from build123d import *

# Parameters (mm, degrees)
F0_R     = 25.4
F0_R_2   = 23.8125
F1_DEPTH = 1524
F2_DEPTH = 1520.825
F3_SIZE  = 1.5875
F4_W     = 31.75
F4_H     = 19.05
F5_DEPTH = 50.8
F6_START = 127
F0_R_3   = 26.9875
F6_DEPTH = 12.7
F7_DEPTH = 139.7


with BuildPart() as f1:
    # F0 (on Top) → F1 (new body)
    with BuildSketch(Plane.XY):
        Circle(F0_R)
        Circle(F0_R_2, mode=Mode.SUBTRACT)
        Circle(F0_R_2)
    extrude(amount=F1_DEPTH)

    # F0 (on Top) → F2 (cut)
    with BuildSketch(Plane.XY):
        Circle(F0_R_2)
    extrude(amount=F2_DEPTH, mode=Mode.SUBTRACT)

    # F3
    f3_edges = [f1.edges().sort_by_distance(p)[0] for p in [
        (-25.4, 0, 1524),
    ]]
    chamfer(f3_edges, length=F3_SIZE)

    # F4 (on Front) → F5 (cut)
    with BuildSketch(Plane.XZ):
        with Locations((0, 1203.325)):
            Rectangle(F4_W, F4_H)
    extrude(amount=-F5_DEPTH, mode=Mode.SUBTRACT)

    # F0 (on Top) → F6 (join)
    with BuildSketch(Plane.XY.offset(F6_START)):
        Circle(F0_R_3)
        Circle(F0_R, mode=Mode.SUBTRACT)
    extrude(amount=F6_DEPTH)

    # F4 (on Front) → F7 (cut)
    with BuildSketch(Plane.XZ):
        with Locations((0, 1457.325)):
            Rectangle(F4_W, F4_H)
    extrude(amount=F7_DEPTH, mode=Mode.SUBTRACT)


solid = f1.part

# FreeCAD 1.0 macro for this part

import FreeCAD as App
import Part
import Sketcher
from FreeCAD import Vector
Q = App.Units.Quantity


def edges_at(feature, points):
    """Names of the edges that pass closest to the given points."""
    edges = feature.Shape.Edges
    near = lambda p: min(range(len(edges)), key=lambda i: edges[i].distToShape(Part.Vertex(*p))[0])
    return sorted({f"Edge{near(p) + 1}" for p in points})

doc = App.newDocument("Part")
params = doc.addObject("Spreadsheet::Sheet", "Params")
for row, (alias, value) in enumerate([
    ("sketch1_diameter", "2 in"),
    ("pad1_length", "60 in"),
    ("sketch2_diameter", "1.875 in"),
    ("pocket1_length", "59.875 in"),
    ("chamfer_size", "0.0625 in"),
    ("sketch3_width", "1.25 in"),
    ("sketch3_height", "0.75 in"),
    ("pocket2_length", "2 in"),
    ("sketch4_diameter", "2 in"),
    ("sketch4_diameter2", "2.125 in"),
    ("pad2_length", "0.5 in"),
    ("sketch5_width", "1.25 in"),
    ("sketch5_height", "0.75 in"),
    ("pocket3_length", "5.5 in"),
], start=1):
    params.set(f"A{row}", alias)
    params.set(f"B{row}", "=" + value)
    params.setAlias(f"B{row}", alias)

body = doc.addObject("PartDesign::Body", "Body")

sketch1 = doc.addObject("Sketcher::SketchObject", "Sketch")
body.addObject(sketch1)
sketch1.AttachmentSupport = (doc.XY_Plane, [""])
sketch1.MapMode = "FlatFace"
sketch1.addGeometry(Part.Circle(Vector(0, 0, 0), Vector(0, 0, 1), 25), False)
sketch1.addConstraint([
    Sketcher.Constraint("Coincident", 0, 3, -1, 1),
    Sketcher.Constraint("Diameter", 0, Q("2 in")),
])
sketch1.setExpression("Constraints[1]", "Params.sketch1_diameter")
pad1 = doc.addObject("PartDesign::Pad", "Pad")
body.addObject(pad1)
pad1.Profile = sketch1
pad1.setExpression("Length", "Params.pad1_length")

sketch2 = doc.addObject("Sketcher::SketchObject", "Sketch001")
body.addObject(sketch2)
sketch2.AttachmentSupport = (doc.XY_Plane, [""])
sketch2.MapMode = "FlatFace"
sketch2.addGeometry(Part.Circle(Vector(0, 0, 0), Vector(0, 0, 1), 24), False)
sketch2.addConstraint([
    Sketcher.Constraint("Coincident", 0, 3, -1, 1),
    Sketcher.Constraint("Diameter", 0, Q("1.875 in")),
])
sketch2.setExpression("Constraints[1]", "Params.sketch2_diameter")
pocket1 = doc.addObject("PartDesign::Pocket", "Pocket")
body.addObject(pocket1)
pocket1.Profile = sketch2
pocket1.setExpression("Length", "Params.pocket1_length")
pocket1.Reversed = True
doc.recompute()

chamfer = doc.addObject("PartDesign::Chamfer", "Chamfer")
body.addObject(chamfer)
chamfer.Base = (pocket1, edges_at(pocket1, [(-25.4, 0, 1524)]))
chamfer.setExpression("Size", "Params.chamfer_size")

sketch3 = doc.addObject("Sketcher::SketchObject", "Sketch002")
body.addObject(sketch3)
sketch3.AttachmentSupport = (doc.XZ_Plane, [""])
sketch3.MapMode = "FlatFace"
sketch3.addGeometry([
    Part.LineSegment(Vector(-16, 1213, 0), Vector(-16, 1194, 0)),
    Part.LineSegment(Vector(-16, 1194, 0), Vector(16, 1194, 0)),
    Part.LineSegment(Vector(16, 1194, 0), Vector(16, 1213, 0)),
    Part.LineSegment(Vector(16, 1213, 0), Vector(-16, 1213, 0)),
], False)
sketch3.addConstraint([
    Sketcher.Constraint("Coincident", 0, 2, 1, 1),
    Sketcher.Constraint("Coincident", 1, 2, 2, 1),
    Sketcher.Constraint("Coincident", 2, 2, 3, 1),
    Sketcher.Constraint("Coincident", 3, 2, 0, 1),
    Sketcher.Constraint("Vertical", 0),
    Sketcher.Constraint("Horizontal", 1),
    Sketcher.Constraint("Vertical", 2),
    Sketcher.Constraint("Horizontal", 3),
    Sketcher.Constraint("DistanceY", -1, 1, 0, 2, Q("47 in")),
    Sketcher.Constraint("DistanceX", 1, 1, 1, 2, Q("1.25 in")),
    Sketcher.Constraint("DistanceY", 0, 2, 0, 1, Q("0.75 in")),
    Sketcher.Constraint("DistanceX", 0, 2, -1, 1, Q("0.625 in")),
])
sketch3.setExpression("Constraints[9]", "Params.sketch3_width")
sketch3.setExpression("Constraints[10]", "Params.sketch3_height")
pocket2 = doc.addObject("PartDesign::Pocket", "Pocket001")
body.addObject(pocket2)
pocket2.Profile = sketch3
pocket2.setExpression("Length", "Params.pocket2_length")

sketch4 = doc.addObject("Sketcher::SketchObject", "Sketch003")
body.addObject(sketch4)
sketch4.AttachmentSupport = (doc.XY_Plane, [""])
sketch4.MapMode = "FlatFace"
sketch4.AttachmentOffset = App.Placement(Vector(0, 0, 5 * 25.4), App.Rotation())
sketch4.addGeometry([
    Part.Circle(Vector(0, 0, 0), Vector(0, 0, 1), 27),
    Part.Circle(Vector(0, 0, 0), Vector(0, 0, 1), 25),
], False)
sketch4.addConstraint([
    Sketcher.Constraint("Coincident", 0, 3, -1, 1),
    Sketcher.Constraint("Coincident", 1, 3, -1, 1),
    Sketcher.Constraint("Diameter", 1, Q("2 in")),
    Sketcher.Constraint("Diameter", 0, Q("2.125 in")),
])
sketch4.setExpression("Constraints[2]", "Params.sketch4_diameter")
sketch4.setExpression("Constraints[3]", "Params.sketch4_diameter2")
pad2 = doc.addObject("PartDesign::Pad", "Pad001")
body.addObject(pad2)
pad2.Profile = sketch4
pad2.setExpression("Length", "Params.pad2_length")

sketch5 = doc.addObject("Sketcher::SketchObject", "Sketch004")
body.addObject(sketch5)
sketch5.AttachmentSupport = (doc.XZ_Plane, [""])
sketch5.MapMode = "FlatFace"
sketch5.addGeometry([
    Part.LineSegment(Vector(-16, 1467, 0), Vector(-16, 1448, 0)),
    Part.LineSegment(Vector(-16, 1448, 0), Vector(16, 1448, 0)),
    Part.LineSegment(Vector(16, 1448, 0), Vector(16, 1467, 0)),
    Part.LineSegment(Vector(16, 1467, 0), Vector(-16, 1467, 0)),
], False)
sketch5.addConstraint([
    Sketcher.Constraint("Coincident", 0, 2, 1, 1),
    Sketcher.Constraint("Coincident", 1, 2, 2, 1),
    Sketcher.Constraint("Coincident", 2, 2, 3, 1),
    Sketcher.Constraint("Coincident", 3, 2, 0, 1),
    Sketcher.Constraint("Vertical", 0),
    Sketcher.Constraint("Horizontal", 1),
    Sketcher.Constraint("Vertical", 2),
    Sketcher.Constraint("Horizontal", 3),
    Sketcher.Constraint("DistanceY", -1, 1, 0, 2, Q("57 in")),
    Sketcher.Constraint("DistanceX", 1, 1, 1, 2, Q("1.25 in")),
    Sketcher.Constraint("DistanceY", 0, 2, 0, 1, Q("0.75 in")),
    Sketcher.Constraint("DistanceX", 0, 2, -1, 1, Q("0.625 in")),
])
sketch5.setExpression("Constraints[9]", "Params.sketch5_width")
sketch5.setExpression("Constraints[10]", "Params.sketch5_height")
pocket3 = doc.addObject("PartDesign::Pocket", "Pocket002")
body.addObject(pocket3)
pocket3.Profile = sketch5
pocket3.setExpression("Length", "Params.pocket3_length")
pocket3.Reversed = True

doc.recompute()
